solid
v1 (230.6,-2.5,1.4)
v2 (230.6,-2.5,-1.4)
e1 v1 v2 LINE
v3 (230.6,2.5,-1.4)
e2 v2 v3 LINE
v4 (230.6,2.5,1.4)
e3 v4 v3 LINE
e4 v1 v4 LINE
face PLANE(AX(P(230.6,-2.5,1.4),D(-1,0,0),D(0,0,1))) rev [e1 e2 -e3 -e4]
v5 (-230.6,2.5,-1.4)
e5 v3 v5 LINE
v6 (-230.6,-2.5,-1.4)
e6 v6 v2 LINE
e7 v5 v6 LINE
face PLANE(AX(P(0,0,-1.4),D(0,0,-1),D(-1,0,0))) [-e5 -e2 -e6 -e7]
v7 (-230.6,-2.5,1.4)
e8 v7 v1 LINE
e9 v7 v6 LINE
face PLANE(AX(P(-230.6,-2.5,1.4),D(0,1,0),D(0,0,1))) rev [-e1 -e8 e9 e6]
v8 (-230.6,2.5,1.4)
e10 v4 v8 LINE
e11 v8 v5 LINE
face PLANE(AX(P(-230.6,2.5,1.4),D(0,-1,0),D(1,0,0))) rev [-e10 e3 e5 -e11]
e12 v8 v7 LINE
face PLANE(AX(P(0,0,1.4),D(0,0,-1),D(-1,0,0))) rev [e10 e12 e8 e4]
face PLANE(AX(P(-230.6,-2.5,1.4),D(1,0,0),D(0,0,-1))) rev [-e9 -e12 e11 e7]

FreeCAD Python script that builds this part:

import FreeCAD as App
import Part
import Sketcher
from FreeCAD import Vector
Q = App.Units.Quantity


def add_polygon(sketch, points):
    """Adds a closed chain of lines whose ends are joined by coincident constraints."""
    first, n = sketch.GeometryCount, len(points)
    for a, b in zip(points, points[1:] + points[:1]):
        sketch.addGeometry(Part.LineSegment(App.Vector(*a, 0), App.Vector(*b, 0)), False)
    for i in range(n):
        sketch.addConstraint(Sketcher.Constraint("Coincident", first + i, 2, first + (i + 1) % n, 1))

doc = App.newDocument("Part")
body = doc.addObject("PartDesign::Body", "Body")

# Sketch on XY plane
sketch1 = body.newObject("Sketcher::SketchObject", "Sketch")
sketch1.AttachmentSupport = (doc.getObject("XY_Plane"), [""])
sketch1.MapMode = "FlatFace"
add_polygon(sketch1, [(-230.6, 2.5), (-230.6, -2.5), (230.6, -2.5), (230.6, 2.5)])  # lines 0-3
sketch1.addConstraint(Sketcher.Constraint("Vertical", 0))
sketch1.addConstraint(Sketcher.Constraint("Horizontal", 1))
sketch1.addConstraint(Sketcher.Constraint("Vertical", 2))
sketch1.addConstraint(Sketcher.Constraint("Horizontal", 3))
sketch1.addConstraint(Sketcher.Constraint("Symmetric", 0, 2, 2, 2, -1, 1))
sketch1.addConstraint(Sketcher.Constraint("DistanceY", 0, 2, 0, 1, Q("5 mm")))
sketch1.addConstraint(Sketcher.Constraint("DistanceX", 1, 1, 1, 2, Q("461.2 mm")))
pad1 = body.newObject("PartDesign::Pad", "Pad")
pad1.Profile = sketch1
pad1.Length = 2.8
pad1.Midplane = True

doc.recompute()
